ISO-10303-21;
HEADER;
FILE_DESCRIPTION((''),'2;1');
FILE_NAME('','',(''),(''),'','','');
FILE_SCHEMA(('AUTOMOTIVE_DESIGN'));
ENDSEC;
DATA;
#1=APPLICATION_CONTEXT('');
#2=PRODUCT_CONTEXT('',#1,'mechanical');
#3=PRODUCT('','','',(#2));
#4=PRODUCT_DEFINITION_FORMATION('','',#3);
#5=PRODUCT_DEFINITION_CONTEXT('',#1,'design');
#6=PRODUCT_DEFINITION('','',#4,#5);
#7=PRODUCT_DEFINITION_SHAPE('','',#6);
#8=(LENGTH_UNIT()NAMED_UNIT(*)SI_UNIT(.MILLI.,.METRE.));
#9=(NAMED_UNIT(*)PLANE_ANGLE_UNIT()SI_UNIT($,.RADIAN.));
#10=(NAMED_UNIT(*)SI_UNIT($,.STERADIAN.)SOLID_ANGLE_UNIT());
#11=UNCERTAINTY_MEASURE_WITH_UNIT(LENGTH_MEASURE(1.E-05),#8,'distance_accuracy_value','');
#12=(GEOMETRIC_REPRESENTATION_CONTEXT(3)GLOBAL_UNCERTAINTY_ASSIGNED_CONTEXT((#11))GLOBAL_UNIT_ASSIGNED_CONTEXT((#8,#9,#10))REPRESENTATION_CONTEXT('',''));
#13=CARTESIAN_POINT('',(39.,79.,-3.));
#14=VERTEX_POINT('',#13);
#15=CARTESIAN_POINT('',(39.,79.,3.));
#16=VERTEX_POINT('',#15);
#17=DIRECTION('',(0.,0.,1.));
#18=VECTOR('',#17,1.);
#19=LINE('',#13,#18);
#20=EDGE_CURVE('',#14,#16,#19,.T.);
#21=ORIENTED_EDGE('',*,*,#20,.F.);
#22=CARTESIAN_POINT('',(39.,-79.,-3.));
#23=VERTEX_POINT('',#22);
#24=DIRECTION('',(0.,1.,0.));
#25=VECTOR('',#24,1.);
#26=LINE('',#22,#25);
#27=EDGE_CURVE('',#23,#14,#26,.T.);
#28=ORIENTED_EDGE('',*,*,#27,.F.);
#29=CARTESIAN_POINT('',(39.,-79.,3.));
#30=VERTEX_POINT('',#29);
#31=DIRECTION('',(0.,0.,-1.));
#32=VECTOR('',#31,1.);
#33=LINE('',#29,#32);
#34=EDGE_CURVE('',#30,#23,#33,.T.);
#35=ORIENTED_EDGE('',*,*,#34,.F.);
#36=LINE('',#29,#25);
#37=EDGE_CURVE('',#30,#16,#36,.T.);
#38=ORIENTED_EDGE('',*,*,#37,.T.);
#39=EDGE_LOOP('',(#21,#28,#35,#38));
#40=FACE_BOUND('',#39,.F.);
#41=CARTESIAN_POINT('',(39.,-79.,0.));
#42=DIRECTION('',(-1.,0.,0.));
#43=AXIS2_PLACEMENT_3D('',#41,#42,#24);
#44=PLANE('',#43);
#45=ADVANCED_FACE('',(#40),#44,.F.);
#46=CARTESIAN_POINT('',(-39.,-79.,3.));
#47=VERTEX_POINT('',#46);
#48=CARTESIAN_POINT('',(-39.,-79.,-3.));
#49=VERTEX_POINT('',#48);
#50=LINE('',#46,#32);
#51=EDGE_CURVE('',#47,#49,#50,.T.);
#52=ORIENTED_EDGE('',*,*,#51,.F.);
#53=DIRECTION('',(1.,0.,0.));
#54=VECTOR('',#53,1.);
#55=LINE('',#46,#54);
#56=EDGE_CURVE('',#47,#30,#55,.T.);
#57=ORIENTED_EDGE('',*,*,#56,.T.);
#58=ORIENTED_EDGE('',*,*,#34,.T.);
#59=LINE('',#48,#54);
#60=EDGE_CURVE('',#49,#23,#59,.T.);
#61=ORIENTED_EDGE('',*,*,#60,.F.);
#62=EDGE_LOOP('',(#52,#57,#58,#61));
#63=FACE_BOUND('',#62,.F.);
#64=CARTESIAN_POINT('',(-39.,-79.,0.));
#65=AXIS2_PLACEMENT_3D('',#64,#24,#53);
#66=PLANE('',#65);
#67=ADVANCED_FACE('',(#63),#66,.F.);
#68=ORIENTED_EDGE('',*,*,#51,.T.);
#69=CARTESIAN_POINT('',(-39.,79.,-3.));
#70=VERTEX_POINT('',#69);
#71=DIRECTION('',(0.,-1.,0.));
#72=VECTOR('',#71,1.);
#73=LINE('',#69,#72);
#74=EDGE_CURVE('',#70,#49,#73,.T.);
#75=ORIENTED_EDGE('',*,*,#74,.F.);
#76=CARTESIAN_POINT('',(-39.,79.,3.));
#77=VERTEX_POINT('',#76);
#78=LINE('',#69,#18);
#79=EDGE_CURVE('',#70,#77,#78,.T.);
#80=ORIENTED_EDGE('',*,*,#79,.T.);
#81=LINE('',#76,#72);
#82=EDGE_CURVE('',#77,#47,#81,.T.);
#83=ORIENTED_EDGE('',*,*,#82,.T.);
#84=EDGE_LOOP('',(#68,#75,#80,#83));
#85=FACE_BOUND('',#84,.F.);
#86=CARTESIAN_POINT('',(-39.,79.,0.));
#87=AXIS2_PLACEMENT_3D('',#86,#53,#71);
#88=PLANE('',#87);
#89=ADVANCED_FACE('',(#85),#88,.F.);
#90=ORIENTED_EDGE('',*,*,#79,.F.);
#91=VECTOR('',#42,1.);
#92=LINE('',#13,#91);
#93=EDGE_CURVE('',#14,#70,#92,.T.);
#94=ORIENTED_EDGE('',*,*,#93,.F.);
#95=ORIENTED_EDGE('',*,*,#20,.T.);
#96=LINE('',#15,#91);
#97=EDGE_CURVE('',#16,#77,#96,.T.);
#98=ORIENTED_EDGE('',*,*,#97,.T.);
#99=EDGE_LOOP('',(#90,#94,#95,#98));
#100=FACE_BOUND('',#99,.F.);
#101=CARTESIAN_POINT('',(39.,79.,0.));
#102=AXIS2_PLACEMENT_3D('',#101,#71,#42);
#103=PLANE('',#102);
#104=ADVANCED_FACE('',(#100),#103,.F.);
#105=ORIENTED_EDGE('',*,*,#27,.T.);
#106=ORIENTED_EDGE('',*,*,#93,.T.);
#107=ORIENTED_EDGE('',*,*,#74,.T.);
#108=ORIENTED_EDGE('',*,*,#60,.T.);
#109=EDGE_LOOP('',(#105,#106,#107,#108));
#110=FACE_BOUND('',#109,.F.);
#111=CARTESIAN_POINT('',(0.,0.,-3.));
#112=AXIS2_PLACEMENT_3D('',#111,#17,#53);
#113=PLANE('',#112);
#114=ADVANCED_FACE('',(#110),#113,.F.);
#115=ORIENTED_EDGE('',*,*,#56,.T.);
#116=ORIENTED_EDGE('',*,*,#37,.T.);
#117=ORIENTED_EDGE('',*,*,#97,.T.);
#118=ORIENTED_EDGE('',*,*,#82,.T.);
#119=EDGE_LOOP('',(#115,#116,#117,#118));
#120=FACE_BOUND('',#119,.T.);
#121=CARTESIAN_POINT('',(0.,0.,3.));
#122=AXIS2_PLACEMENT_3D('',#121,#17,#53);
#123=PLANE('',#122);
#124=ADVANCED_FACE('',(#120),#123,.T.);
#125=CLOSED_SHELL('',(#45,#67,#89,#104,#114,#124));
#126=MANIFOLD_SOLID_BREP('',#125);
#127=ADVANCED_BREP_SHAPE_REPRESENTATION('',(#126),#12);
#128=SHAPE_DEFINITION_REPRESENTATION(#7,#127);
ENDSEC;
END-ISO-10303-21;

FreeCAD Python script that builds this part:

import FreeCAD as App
import Part
import Sketcher

V = App.Vector
Q = App.Units.Quantity


def add_polygon(sketch, points):
    """Adds a closed chain of lines whose ends are joined by coincident constraints."""
    first, n = sketch.GeometryCount, len(points)
    for a, b in zip(points, points[1:] + points[:1]):
        sketch.addGeometry(Part.LineSegment(App.Vector(*a, 0), App.Vector(*b, 0)), False)
    for i in range(n):
        sketch.addConstraint(Sketcher.Constraint("Coincident", first + i, 2, first + (i + 1) % n, 1))

doc = App.newDocument("Part")
body = doc.addObject("PartDesign::Body", "Body")

# Sketch on XY plane
sketch1 = body.newObject("Sketcher::SketchObject", "Sketch")
sketch1.AttachmentSupport = (doc.getObject("XY_Plane"), [""])
sketch1.MapMode = "FlatFace"
add_polygon(sketch1, [(39, -79), (39, 79), (-39, 79), (-39, -79)])  # lines 0-3
sketch1.addConstraint(Sketcher.Constraint("Vertical", 0))
sketch1.addConstraint(Sketcher.Constraint("Horizontal", 1))
sketch1.addConstraint(Sketcher.Constraint("Vertical", 2))
sketch1.addConstraint(Sketcher.Constraint("Horizontal", 3))
sketch1.addConstraint(Sketcher.Constraint("Symmetric", 0, 2, 2, 2, -1, 1))
sketch1.addConstraint(Sketcher.Constraint("DistanceX", 1, 2, 1, 1, Q("78 mm")))
sketch1.addConstraint(Sketcher.Constraint("DistanceY", 0, 1, 0, 2, Q("158 mm")))
pad1 = body.newObject("PartDesign::Pad", "Pad")
pad1.Profile = sketch1
pad1.Length = 6
pad1.Midplane = True

doc.recompute()
